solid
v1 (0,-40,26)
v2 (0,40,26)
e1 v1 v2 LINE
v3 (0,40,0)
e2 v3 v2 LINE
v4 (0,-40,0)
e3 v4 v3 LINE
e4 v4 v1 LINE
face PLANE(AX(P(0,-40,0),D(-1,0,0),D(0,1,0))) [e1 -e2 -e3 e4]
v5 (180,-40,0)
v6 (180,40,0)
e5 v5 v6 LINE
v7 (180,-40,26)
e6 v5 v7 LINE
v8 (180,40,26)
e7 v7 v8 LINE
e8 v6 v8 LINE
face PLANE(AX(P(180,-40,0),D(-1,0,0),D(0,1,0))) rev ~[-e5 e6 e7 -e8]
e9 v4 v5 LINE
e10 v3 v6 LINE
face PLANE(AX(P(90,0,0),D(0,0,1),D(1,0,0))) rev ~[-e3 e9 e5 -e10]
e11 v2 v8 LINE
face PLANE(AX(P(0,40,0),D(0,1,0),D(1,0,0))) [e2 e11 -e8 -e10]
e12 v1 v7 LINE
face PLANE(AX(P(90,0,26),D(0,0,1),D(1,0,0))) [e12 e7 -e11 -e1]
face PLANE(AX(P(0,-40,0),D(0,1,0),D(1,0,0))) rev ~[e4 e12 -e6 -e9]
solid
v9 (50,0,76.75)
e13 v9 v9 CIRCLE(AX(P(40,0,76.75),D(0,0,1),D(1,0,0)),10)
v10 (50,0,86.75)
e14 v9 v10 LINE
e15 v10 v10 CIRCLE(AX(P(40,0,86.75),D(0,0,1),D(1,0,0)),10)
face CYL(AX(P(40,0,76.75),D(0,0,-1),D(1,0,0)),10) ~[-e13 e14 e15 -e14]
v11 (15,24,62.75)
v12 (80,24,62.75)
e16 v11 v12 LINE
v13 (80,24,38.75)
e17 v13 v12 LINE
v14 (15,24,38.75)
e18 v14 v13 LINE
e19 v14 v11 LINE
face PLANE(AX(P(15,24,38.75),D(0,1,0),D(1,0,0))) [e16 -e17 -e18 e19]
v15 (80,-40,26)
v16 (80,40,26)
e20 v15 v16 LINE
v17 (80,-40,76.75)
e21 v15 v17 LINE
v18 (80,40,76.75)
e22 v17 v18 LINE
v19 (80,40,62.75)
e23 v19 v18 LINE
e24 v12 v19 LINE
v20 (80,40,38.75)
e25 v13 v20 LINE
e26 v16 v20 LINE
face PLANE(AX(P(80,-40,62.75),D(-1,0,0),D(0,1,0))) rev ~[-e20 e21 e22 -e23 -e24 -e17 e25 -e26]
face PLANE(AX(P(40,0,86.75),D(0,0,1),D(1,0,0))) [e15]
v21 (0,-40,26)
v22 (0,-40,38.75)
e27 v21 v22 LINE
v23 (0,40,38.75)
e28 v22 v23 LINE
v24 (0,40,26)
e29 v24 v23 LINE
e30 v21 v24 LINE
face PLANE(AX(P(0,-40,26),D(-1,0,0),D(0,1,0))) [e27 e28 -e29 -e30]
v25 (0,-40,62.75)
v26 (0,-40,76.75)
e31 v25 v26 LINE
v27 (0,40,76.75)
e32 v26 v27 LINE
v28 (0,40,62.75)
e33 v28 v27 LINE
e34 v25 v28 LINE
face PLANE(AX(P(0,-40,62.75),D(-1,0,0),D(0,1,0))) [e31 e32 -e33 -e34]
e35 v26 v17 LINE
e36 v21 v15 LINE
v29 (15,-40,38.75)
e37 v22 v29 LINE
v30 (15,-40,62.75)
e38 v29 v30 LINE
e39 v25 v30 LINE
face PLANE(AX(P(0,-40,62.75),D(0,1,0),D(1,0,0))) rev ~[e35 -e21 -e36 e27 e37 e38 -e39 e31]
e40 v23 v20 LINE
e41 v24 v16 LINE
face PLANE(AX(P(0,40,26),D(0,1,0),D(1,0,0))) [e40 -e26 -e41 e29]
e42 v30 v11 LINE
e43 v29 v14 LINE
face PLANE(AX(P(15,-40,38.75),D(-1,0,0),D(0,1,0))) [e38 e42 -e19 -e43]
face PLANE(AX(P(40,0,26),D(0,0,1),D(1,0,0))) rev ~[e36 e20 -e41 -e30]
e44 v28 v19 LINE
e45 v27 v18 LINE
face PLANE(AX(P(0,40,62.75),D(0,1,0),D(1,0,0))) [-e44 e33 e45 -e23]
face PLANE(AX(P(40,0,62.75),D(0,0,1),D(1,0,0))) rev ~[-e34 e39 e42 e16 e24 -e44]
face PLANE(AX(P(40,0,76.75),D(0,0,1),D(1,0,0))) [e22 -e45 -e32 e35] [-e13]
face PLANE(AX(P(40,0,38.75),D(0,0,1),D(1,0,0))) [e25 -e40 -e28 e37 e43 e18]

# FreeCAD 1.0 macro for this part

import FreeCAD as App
import Part
import Sketcher

V = App.Vector
Q = App.Units.Quantity

doc = App.newDocument("Part")
body = doc.addObject("PartDesign::Body", "Body")

sketch1 = doc.addObject("Sketcher::SketchObject", "Sketch")
body.addObject(sketch1)
sketch1.AttachmentSupport = (doc.XY_Plane, [""])
sketch1.MapMode = "FlatFace"
sketch1.addGeometry([
    Part.LineSegment(V(0, 40, 0), V(0, -40, 0)),
    Part.LineSegment(V(0, -40, 0), V(180, -40, 0)),
    Part.LineSegment(V(180, -40, 0), V(180, 40, 0)),
    Part.LineSegment(V(180, 40, 0), V(0, 40, 0)),
], False)
sketch1.addConstraint([
    Sketcher.Constraint("Coincident", 0, 2, 1, 1),
    Sketcher.Constraint("Coincident", 1, 2, 2, 1),
    Sketcher.Constraint("Coincident", 2, 2, 3, 1),
    Sketcher.Constraint("Coincident", 3, 2, 0, 1),
    Sketcher.Constraint("Vertical", 0),
    Sketcher.Constraint("Horizontal", 1),
    Sketcher.Constraint("Vertical", 2),
    Sketcher.Constraint("Horizontal", 3),
    Sketcher.Constraint("Symmetric", 0, 2, 3, 2, -1, 1),
    Sketcher.Constraint("DistanceX", 1, 1, 1, 2, Q("180 mm")),
    Sketcher.Constraint("DistanceY", 0, 2, 0, 1, Q("80 mm")),
])
pad1 = doc.addObject("PartDesign::Pad", "Pad")
body.addObject(pad1)
pad1.Profile = sketch1
pad1.Length = 26
body2 = doc.addObject("PartDesign::Body", "Body001")

sketch2 = doc.addObject("Sketcher::SketchObject", "Sketch001")
body2.addObject(sketch2)
sketch2.AttachmentSupport = (doc.getObject("XY_Plane001"), [""])
sketch2.MapMode = "FlatFace"
sketch2.AttachmentOffset = App.Placement(V(0, 0, 26), App.Rotation())
sketch2.addGeometry([
    Part.LineSegment(V(0, 40, 0), V(0, -40, 0)),
    Part.LineSegment(V(0, -40, 0), V(80, -40, 0)),
    Part.LineSegment(V(80, -40, 0), V(80, 40, 0)),
    Part.LineSegment(V(80, 40, 0), V(0, 40, 0)),
], False)
sketch2.addConstraint([
    Sketcher.Constraint("Coincident", 0, 2, 1, 1),
    Sketcher.Constraint("Coincident", 1, 2, 2, 1),
    Sketcher.Constraint("Coincident", 2, 2, 3, 1),
    Sketcher.Constraint("Coincident", 3, 2, 0, 1),
    Sketcher.Constraint("Vertical", 0),
    Sketcher.Constraint("Horizontal", 1),
    Sketcher.Constraint("Vertical", 2),
    Sketcher.Constraint("Horizontal", 3),
    Sketcher.Constraint("Symmetric", 0, 2, 3, 2, -1, 1),
    Sketcher.Constraint("Equal", 3, 0),
    Sketcher.Constraint("DistanceX", 1, 1, 1, 2, Q("80 mm")),
])
pad2 = doc.addObject("PartDesign::Pad", "Pad001")
body2.addObject(pad2)
pad2.Profile = sketch2
pad2.Length = 12.75

sketch3 = doc.addObject("Sketcher::SketchObject", "Sketch002")
body2.addObject(sketch3)
sketch3.AttachmentSupport = (doc.getObject("XY_Plane001"), [""])
sketch3.MapMode = "FlatFace"
sketch3.AttachmentOffset = App.Placement(V(0, 0, 38.75), App.Rotation())
sketch3.addGeometry([
    Part.LineSegment(V(15, 24, 0), V(15, -40, 0)),
    Part.LineSegment(V(15, -40, 0), V(80, -40, 0)),
    Part.LineSegment(V(80, -40, 0), V(80, 24, 0)),
    Part.LineSegment(V(80, 24, 0), V(15, 24, 0)),
], False)
sketch3.addConstraint([
    Sketcher.Constraint("Coincident", 0, 2, 1, 1),
    Sketcher.Constraint("Coincident", 1, 2, 2, 1),
    Sketcher.Constraint("Coincident", 2, 2, 3, 1),
    Sketcher.Constraint("Coincident", 3, 2, 0, 1),
    Sketcher.Constraint("Vertical", 0),
    Sketcher.Constraint("Horizontal", 1),
    Sketcher.Constraint("Vertical", 2),
    Sketcher.Constraint("Horizontal", 3),
    Sketcher.Constraint("DistanceX", 1, 1, 1, 2, Q("65 mm")),
    Sketcher.Constraint("DistanceY", 0, 2, 0, 1, Q("64 mm")),
    Sketcher.Constraint("DistanceX", -1, 1, 0, 2, Q("15 mm")),
    Sketcher.Constraint("DistanceY", 0, 2, -1, 1, Q("40 mm")),
])
pad3 = doc.addObject("PartDesign::Pad", "Pad002")
body2.addObject(pad3)
pad3.Profile = sketch3
pad3.Length = 24

sketch4 = doc.addObject("Sketcher::SketchObject", "Sketch003")
body2.addObject(sketch4)
sketch4.AttachmentSupport = (doc.getObject("XY_Plane001"), [""])
sketch4.MapMode = "FlatFace"
sketch4.AttachmentOffset = App.Placement(V(0, 0, 62.75), App.Rotation())
sketch4.addGeometry([
    Part.LineSegment(V(0, 40, 0), V(0, -40, 0)),
    Part.LineSegment(V(0, -40, 0), V(80, -40, 0)),
    Part.LineSegment(V(80, -40, 0), V(80, 40, 0)),
    Part.LineSegment(V(80, 40, 0), V(0, 40, 0)),
], False)
sketch4.addConstraint([
    Sketcher.Constraint("Coincident", 0, 2, 1, 1),
    Sketcher.Constraint("Coincident", 1, 2, 2, 1),
    Sketcher.Constraint("Coincident", 2, 2, 3, 1),
    Sketcher.Constraint("Coincident", 3, 2, 0, 1),
    Sketcher.Constraint("Vertical", 0),
    Sketcher.Constraint("Horizontal", 1),
    Sketcher.Constraint("Vertical", 2),
    Sketcher.Constraint("Horizontal", 3),
    Sketcher.Constraint("Symmetric", 0, 2, 3, 2, -1, 1),
    Sketcher.Constraint("Equal", 3, 0),
    Sketcher.Constraint("DistanceX", 1, 1, 1, 2, Q("80 mm")),
])
pad4 = doc.addObject("PartDesign::Pad", "Pad003")
body2.addObject(pad4)
pad4.Profile = sketch4
pad4.Length = 14

sketch5 = doc.addObject("Sketcher::SketchObject", "Sketch004")
body2.addObject(sketch5)
sketch5.AttachmentSupport = (doc.getObject("XY_Plane001"), [""])
sketch5.MapMode = "FlatFace"
sketch5.AttachmentOffset = App.Placement(V(0, 0, 76.75), App.Rotation())
sketch5.addGeometry(Part.Circle(V(40, 0, 0), V(0, 0, 1), 10), False)
sketch5.addConstraint([
    Sketcher.Constraint("PointOnObject", 0, 3, -1),
    Sketcher.Constraint("Diameter", 0, Q("20 mm")),
    Sketcher.Constraint("DistanceX", -1, 1, 0, 3, Q("40 mm")),
])
pad5 = doc.addObject("PartDesign::Pad", "Pad004")
body2.addObject(pad5)
pad5.Profile = sketch5
pad5.Length = 10

doc.recompute()
